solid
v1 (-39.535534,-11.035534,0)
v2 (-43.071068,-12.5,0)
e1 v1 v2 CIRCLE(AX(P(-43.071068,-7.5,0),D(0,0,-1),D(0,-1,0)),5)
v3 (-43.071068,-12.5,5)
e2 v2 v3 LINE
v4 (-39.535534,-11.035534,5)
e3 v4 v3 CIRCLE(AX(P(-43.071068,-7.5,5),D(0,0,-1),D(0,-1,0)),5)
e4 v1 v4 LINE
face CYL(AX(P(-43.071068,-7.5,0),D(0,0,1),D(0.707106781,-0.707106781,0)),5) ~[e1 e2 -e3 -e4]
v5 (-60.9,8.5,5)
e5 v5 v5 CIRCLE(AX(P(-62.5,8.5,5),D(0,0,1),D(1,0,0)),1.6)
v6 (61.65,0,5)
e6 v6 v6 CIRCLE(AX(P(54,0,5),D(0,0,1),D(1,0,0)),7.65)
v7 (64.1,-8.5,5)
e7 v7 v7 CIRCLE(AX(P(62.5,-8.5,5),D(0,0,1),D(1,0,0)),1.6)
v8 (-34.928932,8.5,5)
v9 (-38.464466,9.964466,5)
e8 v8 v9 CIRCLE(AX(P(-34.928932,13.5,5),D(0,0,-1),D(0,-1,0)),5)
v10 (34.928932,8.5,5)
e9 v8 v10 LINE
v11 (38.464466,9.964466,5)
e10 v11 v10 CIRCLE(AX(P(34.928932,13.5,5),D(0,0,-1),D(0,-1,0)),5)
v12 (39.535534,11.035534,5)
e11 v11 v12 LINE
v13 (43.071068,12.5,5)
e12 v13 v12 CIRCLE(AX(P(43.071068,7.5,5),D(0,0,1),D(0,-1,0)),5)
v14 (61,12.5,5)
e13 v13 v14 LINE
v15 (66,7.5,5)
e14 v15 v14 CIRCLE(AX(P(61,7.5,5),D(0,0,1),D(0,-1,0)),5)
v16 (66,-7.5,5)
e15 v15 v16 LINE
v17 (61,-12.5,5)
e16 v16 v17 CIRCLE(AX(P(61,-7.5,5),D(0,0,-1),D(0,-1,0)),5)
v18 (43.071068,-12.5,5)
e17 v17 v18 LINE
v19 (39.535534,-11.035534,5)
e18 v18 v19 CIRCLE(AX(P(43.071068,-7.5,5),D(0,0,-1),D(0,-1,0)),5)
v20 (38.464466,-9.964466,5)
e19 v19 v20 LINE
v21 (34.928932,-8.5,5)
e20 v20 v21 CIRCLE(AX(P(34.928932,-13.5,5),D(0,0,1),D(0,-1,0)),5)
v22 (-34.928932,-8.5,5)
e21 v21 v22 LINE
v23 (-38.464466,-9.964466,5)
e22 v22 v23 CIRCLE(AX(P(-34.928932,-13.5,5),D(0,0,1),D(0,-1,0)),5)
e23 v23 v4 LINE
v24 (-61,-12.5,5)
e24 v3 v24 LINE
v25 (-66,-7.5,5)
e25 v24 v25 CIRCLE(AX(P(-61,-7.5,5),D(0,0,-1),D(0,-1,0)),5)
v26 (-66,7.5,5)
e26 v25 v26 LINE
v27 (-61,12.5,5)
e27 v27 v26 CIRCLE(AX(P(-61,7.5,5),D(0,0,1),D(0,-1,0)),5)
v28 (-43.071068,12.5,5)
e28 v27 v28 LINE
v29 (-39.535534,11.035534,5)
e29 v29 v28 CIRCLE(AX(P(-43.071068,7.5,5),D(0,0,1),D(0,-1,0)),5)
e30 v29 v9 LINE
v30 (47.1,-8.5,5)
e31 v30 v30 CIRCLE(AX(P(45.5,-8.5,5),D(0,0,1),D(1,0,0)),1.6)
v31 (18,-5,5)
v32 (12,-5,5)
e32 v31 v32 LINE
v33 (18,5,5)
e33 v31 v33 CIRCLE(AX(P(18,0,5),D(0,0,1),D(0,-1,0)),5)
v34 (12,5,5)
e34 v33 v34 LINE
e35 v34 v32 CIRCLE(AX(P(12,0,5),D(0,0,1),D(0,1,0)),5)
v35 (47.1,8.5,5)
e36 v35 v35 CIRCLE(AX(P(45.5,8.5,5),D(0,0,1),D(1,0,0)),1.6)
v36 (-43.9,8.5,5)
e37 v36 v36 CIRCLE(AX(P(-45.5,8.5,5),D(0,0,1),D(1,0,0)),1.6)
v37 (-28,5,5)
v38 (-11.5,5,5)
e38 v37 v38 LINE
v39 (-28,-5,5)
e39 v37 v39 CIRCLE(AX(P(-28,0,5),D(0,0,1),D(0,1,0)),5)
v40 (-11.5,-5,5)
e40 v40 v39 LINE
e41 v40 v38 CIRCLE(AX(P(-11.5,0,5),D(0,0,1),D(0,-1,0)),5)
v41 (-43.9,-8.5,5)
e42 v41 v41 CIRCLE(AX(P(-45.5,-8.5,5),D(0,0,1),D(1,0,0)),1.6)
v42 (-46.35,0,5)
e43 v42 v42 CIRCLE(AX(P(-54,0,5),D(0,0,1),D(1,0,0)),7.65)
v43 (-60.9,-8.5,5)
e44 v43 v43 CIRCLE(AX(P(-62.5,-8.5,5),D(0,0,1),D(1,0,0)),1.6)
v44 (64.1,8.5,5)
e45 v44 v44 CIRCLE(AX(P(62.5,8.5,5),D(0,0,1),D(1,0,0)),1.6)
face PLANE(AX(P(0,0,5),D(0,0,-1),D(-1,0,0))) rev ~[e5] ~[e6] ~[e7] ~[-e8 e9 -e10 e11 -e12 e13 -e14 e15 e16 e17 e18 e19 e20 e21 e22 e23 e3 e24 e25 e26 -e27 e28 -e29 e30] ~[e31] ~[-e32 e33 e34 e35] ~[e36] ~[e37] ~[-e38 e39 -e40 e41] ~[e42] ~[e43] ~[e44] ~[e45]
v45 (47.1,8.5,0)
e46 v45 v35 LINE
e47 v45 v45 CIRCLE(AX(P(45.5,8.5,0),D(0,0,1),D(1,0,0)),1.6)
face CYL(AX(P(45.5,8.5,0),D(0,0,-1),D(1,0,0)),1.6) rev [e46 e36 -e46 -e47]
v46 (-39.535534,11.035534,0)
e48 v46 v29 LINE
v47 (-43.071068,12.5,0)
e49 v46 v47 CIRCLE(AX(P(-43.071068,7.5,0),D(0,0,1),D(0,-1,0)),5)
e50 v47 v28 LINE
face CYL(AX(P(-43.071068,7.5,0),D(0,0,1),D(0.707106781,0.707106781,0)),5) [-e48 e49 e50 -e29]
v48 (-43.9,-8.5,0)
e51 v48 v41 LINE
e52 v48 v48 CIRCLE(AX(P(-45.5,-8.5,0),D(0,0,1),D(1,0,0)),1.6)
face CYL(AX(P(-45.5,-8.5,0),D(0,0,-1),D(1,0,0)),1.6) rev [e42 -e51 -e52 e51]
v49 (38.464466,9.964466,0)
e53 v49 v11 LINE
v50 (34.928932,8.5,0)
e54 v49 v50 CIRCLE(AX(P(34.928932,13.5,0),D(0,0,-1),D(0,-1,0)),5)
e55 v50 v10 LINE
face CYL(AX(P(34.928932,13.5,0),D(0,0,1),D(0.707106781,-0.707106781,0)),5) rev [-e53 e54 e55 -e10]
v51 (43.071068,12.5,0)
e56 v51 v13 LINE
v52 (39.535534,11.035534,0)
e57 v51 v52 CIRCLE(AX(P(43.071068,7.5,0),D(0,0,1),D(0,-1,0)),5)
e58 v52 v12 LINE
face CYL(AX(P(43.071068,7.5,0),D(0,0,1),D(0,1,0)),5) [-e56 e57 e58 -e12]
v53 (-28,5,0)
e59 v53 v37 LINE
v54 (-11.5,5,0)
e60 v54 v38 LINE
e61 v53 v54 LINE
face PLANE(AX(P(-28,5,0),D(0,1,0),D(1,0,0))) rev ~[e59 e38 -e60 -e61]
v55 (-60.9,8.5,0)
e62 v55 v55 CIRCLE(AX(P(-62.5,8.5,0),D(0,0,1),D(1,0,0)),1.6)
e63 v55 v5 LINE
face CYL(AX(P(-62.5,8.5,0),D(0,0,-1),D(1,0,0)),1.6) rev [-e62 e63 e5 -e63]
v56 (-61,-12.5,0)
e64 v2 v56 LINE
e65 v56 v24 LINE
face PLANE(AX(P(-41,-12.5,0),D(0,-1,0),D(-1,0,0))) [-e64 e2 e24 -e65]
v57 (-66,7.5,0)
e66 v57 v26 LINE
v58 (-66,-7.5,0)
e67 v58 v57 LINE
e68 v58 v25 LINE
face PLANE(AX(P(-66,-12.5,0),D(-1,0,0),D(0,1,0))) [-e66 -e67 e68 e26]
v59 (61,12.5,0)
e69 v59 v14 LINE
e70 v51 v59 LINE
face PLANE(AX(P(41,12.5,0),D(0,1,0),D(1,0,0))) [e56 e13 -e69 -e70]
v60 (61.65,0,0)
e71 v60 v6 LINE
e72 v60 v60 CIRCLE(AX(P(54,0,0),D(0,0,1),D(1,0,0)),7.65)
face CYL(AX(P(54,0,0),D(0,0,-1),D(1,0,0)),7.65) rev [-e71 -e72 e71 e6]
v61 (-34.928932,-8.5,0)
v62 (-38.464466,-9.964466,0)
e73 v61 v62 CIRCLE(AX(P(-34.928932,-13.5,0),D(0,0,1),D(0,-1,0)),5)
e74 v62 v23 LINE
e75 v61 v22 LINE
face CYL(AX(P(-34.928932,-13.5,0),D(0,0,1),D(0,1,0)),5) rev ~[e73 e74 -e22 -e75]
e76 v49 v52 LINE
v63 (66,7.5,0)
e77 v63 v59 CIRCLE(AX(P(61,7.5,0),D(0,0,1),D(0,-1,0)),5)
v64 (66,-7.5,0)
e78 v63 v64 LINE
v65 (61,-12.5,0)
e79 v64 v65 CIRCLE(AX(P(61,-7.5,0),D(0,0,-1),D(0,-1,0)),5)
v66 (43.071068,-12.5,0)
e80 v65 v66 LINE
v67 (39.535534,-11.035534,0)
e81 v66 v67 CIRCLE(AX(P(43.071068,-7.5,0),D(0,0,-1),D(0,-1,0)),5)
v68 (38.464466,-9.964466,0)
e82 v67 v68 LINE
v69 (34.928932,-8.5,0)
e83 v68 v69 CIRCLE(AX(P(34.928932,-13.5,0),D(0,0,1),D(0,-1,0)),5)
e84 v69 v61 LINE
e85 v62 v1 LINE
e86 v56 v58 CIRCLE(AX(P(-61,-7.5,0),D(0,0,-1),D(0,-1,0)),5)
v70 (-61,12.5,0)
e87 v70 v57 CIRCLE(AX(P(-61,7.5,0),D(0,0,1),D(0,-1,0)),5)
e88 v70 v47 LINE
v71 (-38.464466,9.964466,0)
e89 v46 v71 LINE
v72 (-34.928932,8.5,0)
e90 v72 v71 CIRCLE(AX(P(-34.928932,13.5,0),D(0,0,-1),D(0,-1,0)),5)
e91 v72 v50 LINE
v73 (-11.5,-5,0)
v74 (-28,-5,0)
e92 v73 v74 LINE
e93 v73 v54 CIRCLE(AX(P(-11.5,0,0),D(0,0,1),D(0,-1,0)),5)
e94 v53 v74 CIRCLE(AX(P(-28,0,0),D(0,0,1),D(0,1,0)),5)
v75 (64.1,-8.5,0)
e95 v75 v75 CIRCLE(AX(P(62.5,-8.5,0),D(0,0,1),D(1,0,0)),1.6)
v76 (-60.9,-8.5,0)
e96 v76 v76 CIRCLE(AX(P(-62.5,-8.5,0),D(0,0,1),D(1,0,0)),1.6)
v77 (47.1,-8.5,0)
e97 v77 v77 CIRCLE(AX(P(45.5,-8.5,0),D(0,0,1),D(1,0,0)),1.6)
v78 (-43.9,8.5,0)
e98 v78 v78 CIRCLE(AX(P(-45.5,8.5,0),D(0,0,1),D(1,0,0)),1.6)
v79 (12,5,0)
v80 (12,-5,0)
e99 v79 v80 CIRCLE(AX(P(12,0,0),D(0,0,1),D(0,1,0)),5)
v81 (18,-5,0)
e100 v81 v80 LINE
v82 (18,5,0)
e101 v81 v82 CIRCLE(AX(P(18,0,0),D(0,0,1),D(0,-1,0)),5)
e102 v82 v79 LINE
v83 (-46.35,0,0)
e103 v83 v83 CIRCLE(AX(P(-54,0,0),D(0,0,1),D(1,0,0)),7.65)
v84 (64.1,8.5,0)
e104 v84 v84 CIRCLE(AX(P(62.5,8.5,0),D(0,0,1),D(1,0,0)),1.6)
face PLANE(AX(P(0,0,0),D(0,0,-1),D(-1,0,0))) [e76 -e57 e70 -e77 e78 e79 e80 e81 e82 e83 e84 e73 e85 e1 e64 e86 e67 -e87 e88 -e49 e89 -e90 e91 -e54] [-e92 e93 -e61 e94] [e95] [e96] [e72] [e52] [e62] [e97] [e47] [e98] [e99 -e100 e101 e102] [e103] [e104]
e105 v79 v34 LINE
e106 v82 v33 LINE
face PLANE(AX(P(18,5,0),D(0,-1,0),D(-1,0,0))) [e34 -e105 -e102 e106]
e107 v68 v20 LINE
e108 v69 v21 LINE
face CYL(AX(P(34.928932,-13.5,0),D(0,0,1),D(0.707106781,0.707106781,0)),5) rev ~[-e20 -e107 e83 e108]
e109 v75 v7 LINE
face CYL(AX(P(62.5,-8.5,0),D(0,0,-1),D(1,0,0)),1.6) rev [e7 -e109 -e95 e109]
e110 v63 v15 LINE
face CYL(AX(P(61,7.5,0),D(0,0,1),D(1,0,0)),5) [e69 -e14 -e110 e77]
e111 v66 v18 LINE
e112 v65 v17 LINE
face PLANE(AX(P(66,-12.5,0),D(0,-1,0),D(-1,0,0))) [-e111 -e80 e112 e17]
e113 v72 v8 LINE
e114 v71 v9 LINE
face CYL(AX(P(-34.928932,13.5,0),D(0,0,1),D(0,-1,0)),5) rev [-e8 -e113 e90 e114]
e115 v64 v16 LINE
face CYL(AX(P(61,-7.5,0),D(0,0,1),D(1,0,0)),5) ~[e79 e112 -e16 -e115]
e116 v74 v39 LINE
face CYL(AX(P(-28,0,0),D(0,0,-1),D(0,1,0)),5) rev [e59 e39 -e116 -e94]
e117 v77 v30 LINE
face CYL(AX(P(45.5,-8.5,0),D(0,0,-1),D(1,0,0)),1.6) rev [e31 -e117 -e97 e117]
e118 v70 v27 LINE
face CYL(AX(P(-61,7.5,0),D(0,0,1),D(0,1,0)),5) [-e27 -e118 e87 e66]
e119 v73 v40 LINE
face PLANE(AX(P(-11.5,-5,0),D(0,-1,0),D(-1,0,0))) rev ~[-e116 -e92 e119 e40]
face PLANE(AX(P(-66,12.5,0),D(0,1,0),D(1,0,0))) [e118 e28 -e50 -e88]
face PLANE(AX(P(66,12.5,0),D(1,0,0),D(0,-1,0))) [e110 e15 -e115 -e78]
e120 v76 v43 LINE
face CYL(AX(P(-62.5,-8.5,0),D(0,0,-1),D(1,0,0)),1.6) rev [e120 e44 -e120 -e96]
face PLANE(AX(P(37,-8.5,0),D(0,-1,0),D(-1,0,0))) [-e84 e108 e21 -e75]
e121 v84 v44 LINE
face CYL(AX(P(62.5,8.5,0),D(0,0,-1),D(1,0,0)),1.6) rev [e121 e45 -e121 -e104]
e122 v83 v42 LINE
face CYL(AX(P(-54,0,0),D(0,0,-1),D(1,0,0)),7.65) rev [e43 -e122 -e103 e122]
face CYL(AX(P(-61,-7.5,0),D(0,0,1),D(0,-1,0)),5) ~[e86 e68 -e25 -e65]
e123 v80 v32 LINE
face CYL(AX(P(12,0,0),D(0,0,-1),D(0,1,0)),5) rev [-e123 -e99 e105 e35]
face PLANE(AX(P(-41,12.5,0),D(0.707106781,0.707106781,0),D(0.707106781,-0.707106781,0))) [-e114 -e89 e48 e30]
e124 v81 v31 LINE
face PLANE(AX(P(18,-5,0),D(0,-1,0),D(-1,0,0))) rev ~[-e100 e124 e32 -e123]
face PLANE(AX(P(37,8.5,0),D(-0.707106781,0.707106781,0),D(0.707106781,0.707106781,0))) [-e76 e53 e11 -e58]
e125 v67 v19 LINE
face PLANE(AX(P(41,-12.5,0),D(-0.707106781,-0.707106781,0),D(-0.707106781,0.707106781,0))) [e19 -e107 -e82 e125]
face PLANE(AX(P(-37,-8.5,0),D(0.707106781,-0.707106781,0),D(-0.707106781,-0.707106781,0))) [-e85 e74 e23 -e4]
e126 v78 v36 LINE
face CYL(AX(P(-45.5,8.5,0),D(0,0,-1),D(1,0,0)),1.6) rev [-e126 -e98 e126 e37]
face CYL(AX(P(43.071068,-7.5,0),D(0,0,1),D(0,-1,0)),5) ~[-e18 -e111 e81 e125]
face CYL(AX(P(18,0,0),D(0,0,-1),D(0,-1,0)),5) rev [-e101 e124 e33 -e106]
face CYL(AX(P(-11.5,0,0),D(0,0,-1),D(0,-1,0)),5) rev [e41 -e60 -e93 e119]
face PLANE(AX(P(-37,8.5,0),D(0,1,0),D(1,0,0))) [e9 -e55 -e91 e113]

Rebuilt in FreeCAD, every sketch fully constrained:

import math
import FreeCAD as App
import Part
import Sketcher
Q = App.Units.Quantity


def edges_at(feature, points):
    """Names of the edges that pass closest to the given points."""
    edges = feature.Shape.Edges
    near = lambda p: min(range(len(edges)), key=lambda i: edges[i].distToShape(Part.Vertex(*p))[0])
    return sorted({f"Edge{near(p) + 1}" for p in points})


def add_polygon(sketch, points):
    """Adds a closed chain of lines whose ends are joined by coincident constraints."""
    first, n = sketch.GeometryCount, len(points)
    for a, b in zip(points, points[1:] + points[:1]):
        sketch.addGeometry(Part.LineSegment(App.Vector(*a, 0), App.Vector(*b, 0)), False)
    for i in range(n):
        sketch.addConstraint(Sketcher.Constraint("Coincident", first + i, 2, first + (i + 1) % n, 1))

doc = App.newDocument("Part")
body = doc.addObject("PartDesign::Body", "Body")

# Sketch on XY plane
sketch1 = doc.addObject("Sketcher::SketchObject", "Sketch")
body.addObject(sketch1)
sketch1.AttachmentSupport = (doc.XY_Plane, [""])
sketch1.MapMode = "FlatFace"
add_polygon(sketch1, [(66, -12.5), (66, 12.5), (41, 12.5), (37, 8.5), (-37, 8.5), (-41, 12.5), (-66, 12.5), (-66, -12.5), (-41, -12.5), (-37, -8.5), (37, -8.5), (41, -12.5)])  # lines 0-11
sketch1.addGeometry(Part.Circle(App.Vector(62.5, -8.5, 0), App.Vector(0, 0, 1), 1.6), False)  # 12
sketch1.addGeometry(Part.Circle(App.Vector(45.5, -8.5, 0), App.Vector(0, 0, 1), 1.6), False)  # 13
sketch1.addGeometry(Part.Circle(App.Vector(-45.5, -8.5, 0), App.Vector(0, 0, 1), 1.6), False)  # 14
sketch1.addGeometry(Part.Circle(App.Vector(-62.5, -8.5, 0), App.Vector(0, 0, 1), 1.6), False)  # 15
sketch1.addGeometry(Part.Circle(App.Vector(54, 0, 0), App.Vector(0, 0, 1), 7.65), False)  # 16
sketch1.addGeometry(Part.LineSegment(App.Vector(18, -5, 0), App.Vector(12, -5, 0)), False)  # 17
sketch1.addGeometry(Part.ArcOfCircle(Part.Circle(App.Vector(12, 0, 0), App.Vector(0, 0, 1), 5), math.radians(90), math.radians(270)), False)  # 18
sketch1.addGeometry(Part.LineSegment(App.Vector(12, 5, 0), App.Vector(18, 5, 0)), False)  # 19
sketch1.addGeometry(Part.ArcOfCircle(Part.Circle(App.Vector(18, 0, 0), App.Vector(0, 0, 1), 5), math.radians(-90), math.radians(90)), False)  # 20
sketch1.addGeometry(Part.Circle(App.Vector(62.5, 8.5, 0), App.Vector(0, 0, 1), 1.6), False)  # 21
sketch1.addGeometry(Part.Circle(App.Vector(45.5, 8.5, 0), App.Vector(0, 0, 1), 1.6), False)  # 22
sketch1.addGeometry(Part.LineSegment(App.Vector(-28, 5, 0), App.Vector(-11.5, 5, 0)), False)  # 23
sketch1.addGeometry(Part.ArcOfCircle(Part.Circle(App.Vector(-11.5, 0, 0), App.Vector(0, 0, 1), 5), math.radians(-90), math.radians(90)), False)  # 24
sketch1.addGeometry(Part.LineSegment(App.Vector(-11.5, -5, 0), App.Vector(-28, -5, 0)), False)  # 25
sketch1.addGeometry(Part.ArcOfCircle(Part.Circle(App.Vector(-28, 0, 0), App.Vector(0, 0, 1), 5), math.radians(90), math.radians(270)), False)  # 26
sketch1.addGeometry(Part.Circle(App.Vector(-54, 0, 0), App.Vector(0, 0, 1), 7.65), False)  # 27
sketch1.addGeometry(Part.Circle(App.Vector(-45.5, 8.5, 0), App.Vector(0, 0, 1), 1.6), False)  # 28
sketch1.addGeometry(Part.Circle(App.Vector(-62.5, 8.5, 0), App.Vector(0, 0, 1), 1.6), False)  # 29
sketch1.addConstraint([
    Sketcher.Constraint("Tangent", 17, 2, 18, 2),
    Sketcher.Constraint("Tangent", 18, 1, 19, 1),
    Sketcher.Constraint("Tangent", 19, 2, 20, 2),
    Sketcher.Constraint("Tangent", 20, 1, 17, 1),
    Sketcher.Constraint("Tangent", 23, 2, 24, 2),
    Sketcher.Constraint("Tangent", 24, 1, 25, 1),
    Sketcher.Constraint("Tangent", 25, 2, 26, 2),
    Sketcher.Constraint("Tangent", 26, 1, 23, 1),
    Sketcher.Constraint("Vertical", 0),
    Sketcher.Constraint("Horizontal", 1),
    Sketcher.Constraint("Horizontal", 3),
    Sketcher.Constraint("Horizontal", 5),
    Sketcher.Constraint("Vertical", 6),
    Sketcher.Constraint("Horizontal", 7),
    Sketcher.Constraint("Horizontal", 9),
    Sketcher.Constraint("Horizontal", 11),
    Sketcher.Constraint("Horizontal", 17),
    Sketcher.Constraint("Horizontal", 19),
    Sketcher.Constraint("Horizontal", 23),
    Sketcher.Constraint("Horizontal", 25),
    Sketcher.Constraint("Equal", 12, 13),
    Sketcher.Constraint("Equal", 13, 14),
    Sketcher.Constraint("Equal", 14, 15),
    Sketcher.Constraint("Equal", 15, 21),
    Sketcher.Constraint("Equal", 21, 22),
    Sketcher.Constraint("Equal", 20, 24),
    Sketcher.Constraint("Equal", 16, 27),
    Sketcher.Constraint("Equal", 22, 28),
    Sketcher.Constraint("Equal", 28, 29),
    Sketcher.Constraint("Symmetric", 15, 3, 21, 3, -1, 1),
    Sketcher.Constraint("Symmetric", 14, 3, 22, 3, -1, 1),
    Sketcher.Constraint("Symmetric", 16, 3, 27, 3, -1, 1),
    Sketcher.Constraint("Symmetric", 13, 3, 28, 3, -1, 1),
    Sketcher.Constraint("Symmetric", 12, 3, 29, 3, -1, 1),
    Sketcher.Constraint("Symmetric", 0, 2, 6, 2, -1, 1),
    Sketcher.Constraint("Symmetric", 2, 2, 8, 2, -1, 1),
    Sketcher.Constraint("Symmetric", 4, 2, 10, 2, -1, 1),
    Sketcher.Constraint("Symmetric", 13, 3, 14, 3, -2),
    Sketcher.Constraint("Symmetric", 12, 3, 15, 3, -2),
    Sketcher.Constraint("Symmetric", 1, 2, 4, 2, -2),
    Sketcher.Constraint("PointOnObject", 16, 3, -1),
    Sketcher.Constraint("PointOnObject", 18, 3, -1),
    Sketcher.Constraint("PointOnObject", 24, 3, -1),
    Sketcher.Constraint("Perpendicular", 2, 4),
    Sketcher.Constraint("Perpendicular", 4, 8),
    Sketcher.Constraint("Perpendicular", 8, 10),
    Sketcher.Constraint("Horizontal", 12, 3, 13, 3),
    Sketcher.Constraint("Horizontal", 29, 3, 2, 2),
    Sketcher.Constraint("Vertical", 3, 2, 8, 2),
    Sketcher.Constraint("Equal", 11, 0),
    Sketcher.Constraint("Radius", 18, Q("5 mm")),
    Sketcher.Constraint("Diameter", 12, Q("3.2 mm")),
    Sketcher.Constraint("Diameter", 16, Q("15.3 mm")),
    Sketcher.Constraint("DistanceX", 1, 2, 1, 1, Q("25 mm")),
    Sketcher.Constraint("DistanceX", 3, 2, 3, 1, Q("74 mm")),
    Sketcher.Constraint("DistanceX", 17, 2, 17, 1, Q("6 mm")),
    Sketcher.Constraint("DistanceX", 23, 1, 23, 2, Q("16.5 mm")),
    Sketcher.Constraint("DistanceX", -1, 1, 16, 3, Q("54 mm")),
    Sketcher.Constraint("DistanceX", -1, 1, 18, 3, Q("12 mm")),
    Sketcher.Constraint("DistanceX", 26, 3, -1, 1, Q("28 mm")),
    Sketcher.Constraint("DistanceX", -1, 1, 0, 2, Q("66 mm")),
    Sketcher.Constraint("DistanceX", 13, 3, 12, 3, Q("17 mm")),
    Sketcher.Constraint("DistanceX", 14, 3, 13, 3, Q("91 mm")),
])
pad1 = doc.addObject("PartDesign::Pad", "Pad")
body.addObject(pad1)
pad1.Profile = sketch1
pad1.Length = 5
doc.recompute()

fillet = doc.addObject("PartDesign::Fillet", "Fillet")
body.addObject(fillet)
fillet.Base = (pad1, edges_at(pad1, [
    (66, -12.5, 2.5),
    (66, 12.5, 2.5),
    (-66, -12.5, 2.5),
    (-66, 12.5, 2.5),
]))
fillet.Radius = 5
doc.recompute()

fillet2 = doc.addObject("PartDesign::Fillet", "Fillet001")
body.addObject(fillet2)
fillet2.Base = (fillet, edges_at(fillet, [
    (-41, -12.5, 2.5),
    (-37, -8.5, 2.5),
    (37, -8.5, 2.5),
    (41, -12.5, 2.5),
]))
fillet2.Radius = 5
doc.recompute()

fillet3 = doc.addObject("PartDesign::Fillet", "Fillet002")
body.addObject(fillet3)
fillet3.Base = (fillet2, edges_at(fillet2, [
    (41, 12.5, 2.5),
    (37, 8.5, 2.5),
    (-41, 12.5, 2.5),
    (-37, 8.5, 2.5),
]))
fillet3.Radius = 5

doc.recompute()
